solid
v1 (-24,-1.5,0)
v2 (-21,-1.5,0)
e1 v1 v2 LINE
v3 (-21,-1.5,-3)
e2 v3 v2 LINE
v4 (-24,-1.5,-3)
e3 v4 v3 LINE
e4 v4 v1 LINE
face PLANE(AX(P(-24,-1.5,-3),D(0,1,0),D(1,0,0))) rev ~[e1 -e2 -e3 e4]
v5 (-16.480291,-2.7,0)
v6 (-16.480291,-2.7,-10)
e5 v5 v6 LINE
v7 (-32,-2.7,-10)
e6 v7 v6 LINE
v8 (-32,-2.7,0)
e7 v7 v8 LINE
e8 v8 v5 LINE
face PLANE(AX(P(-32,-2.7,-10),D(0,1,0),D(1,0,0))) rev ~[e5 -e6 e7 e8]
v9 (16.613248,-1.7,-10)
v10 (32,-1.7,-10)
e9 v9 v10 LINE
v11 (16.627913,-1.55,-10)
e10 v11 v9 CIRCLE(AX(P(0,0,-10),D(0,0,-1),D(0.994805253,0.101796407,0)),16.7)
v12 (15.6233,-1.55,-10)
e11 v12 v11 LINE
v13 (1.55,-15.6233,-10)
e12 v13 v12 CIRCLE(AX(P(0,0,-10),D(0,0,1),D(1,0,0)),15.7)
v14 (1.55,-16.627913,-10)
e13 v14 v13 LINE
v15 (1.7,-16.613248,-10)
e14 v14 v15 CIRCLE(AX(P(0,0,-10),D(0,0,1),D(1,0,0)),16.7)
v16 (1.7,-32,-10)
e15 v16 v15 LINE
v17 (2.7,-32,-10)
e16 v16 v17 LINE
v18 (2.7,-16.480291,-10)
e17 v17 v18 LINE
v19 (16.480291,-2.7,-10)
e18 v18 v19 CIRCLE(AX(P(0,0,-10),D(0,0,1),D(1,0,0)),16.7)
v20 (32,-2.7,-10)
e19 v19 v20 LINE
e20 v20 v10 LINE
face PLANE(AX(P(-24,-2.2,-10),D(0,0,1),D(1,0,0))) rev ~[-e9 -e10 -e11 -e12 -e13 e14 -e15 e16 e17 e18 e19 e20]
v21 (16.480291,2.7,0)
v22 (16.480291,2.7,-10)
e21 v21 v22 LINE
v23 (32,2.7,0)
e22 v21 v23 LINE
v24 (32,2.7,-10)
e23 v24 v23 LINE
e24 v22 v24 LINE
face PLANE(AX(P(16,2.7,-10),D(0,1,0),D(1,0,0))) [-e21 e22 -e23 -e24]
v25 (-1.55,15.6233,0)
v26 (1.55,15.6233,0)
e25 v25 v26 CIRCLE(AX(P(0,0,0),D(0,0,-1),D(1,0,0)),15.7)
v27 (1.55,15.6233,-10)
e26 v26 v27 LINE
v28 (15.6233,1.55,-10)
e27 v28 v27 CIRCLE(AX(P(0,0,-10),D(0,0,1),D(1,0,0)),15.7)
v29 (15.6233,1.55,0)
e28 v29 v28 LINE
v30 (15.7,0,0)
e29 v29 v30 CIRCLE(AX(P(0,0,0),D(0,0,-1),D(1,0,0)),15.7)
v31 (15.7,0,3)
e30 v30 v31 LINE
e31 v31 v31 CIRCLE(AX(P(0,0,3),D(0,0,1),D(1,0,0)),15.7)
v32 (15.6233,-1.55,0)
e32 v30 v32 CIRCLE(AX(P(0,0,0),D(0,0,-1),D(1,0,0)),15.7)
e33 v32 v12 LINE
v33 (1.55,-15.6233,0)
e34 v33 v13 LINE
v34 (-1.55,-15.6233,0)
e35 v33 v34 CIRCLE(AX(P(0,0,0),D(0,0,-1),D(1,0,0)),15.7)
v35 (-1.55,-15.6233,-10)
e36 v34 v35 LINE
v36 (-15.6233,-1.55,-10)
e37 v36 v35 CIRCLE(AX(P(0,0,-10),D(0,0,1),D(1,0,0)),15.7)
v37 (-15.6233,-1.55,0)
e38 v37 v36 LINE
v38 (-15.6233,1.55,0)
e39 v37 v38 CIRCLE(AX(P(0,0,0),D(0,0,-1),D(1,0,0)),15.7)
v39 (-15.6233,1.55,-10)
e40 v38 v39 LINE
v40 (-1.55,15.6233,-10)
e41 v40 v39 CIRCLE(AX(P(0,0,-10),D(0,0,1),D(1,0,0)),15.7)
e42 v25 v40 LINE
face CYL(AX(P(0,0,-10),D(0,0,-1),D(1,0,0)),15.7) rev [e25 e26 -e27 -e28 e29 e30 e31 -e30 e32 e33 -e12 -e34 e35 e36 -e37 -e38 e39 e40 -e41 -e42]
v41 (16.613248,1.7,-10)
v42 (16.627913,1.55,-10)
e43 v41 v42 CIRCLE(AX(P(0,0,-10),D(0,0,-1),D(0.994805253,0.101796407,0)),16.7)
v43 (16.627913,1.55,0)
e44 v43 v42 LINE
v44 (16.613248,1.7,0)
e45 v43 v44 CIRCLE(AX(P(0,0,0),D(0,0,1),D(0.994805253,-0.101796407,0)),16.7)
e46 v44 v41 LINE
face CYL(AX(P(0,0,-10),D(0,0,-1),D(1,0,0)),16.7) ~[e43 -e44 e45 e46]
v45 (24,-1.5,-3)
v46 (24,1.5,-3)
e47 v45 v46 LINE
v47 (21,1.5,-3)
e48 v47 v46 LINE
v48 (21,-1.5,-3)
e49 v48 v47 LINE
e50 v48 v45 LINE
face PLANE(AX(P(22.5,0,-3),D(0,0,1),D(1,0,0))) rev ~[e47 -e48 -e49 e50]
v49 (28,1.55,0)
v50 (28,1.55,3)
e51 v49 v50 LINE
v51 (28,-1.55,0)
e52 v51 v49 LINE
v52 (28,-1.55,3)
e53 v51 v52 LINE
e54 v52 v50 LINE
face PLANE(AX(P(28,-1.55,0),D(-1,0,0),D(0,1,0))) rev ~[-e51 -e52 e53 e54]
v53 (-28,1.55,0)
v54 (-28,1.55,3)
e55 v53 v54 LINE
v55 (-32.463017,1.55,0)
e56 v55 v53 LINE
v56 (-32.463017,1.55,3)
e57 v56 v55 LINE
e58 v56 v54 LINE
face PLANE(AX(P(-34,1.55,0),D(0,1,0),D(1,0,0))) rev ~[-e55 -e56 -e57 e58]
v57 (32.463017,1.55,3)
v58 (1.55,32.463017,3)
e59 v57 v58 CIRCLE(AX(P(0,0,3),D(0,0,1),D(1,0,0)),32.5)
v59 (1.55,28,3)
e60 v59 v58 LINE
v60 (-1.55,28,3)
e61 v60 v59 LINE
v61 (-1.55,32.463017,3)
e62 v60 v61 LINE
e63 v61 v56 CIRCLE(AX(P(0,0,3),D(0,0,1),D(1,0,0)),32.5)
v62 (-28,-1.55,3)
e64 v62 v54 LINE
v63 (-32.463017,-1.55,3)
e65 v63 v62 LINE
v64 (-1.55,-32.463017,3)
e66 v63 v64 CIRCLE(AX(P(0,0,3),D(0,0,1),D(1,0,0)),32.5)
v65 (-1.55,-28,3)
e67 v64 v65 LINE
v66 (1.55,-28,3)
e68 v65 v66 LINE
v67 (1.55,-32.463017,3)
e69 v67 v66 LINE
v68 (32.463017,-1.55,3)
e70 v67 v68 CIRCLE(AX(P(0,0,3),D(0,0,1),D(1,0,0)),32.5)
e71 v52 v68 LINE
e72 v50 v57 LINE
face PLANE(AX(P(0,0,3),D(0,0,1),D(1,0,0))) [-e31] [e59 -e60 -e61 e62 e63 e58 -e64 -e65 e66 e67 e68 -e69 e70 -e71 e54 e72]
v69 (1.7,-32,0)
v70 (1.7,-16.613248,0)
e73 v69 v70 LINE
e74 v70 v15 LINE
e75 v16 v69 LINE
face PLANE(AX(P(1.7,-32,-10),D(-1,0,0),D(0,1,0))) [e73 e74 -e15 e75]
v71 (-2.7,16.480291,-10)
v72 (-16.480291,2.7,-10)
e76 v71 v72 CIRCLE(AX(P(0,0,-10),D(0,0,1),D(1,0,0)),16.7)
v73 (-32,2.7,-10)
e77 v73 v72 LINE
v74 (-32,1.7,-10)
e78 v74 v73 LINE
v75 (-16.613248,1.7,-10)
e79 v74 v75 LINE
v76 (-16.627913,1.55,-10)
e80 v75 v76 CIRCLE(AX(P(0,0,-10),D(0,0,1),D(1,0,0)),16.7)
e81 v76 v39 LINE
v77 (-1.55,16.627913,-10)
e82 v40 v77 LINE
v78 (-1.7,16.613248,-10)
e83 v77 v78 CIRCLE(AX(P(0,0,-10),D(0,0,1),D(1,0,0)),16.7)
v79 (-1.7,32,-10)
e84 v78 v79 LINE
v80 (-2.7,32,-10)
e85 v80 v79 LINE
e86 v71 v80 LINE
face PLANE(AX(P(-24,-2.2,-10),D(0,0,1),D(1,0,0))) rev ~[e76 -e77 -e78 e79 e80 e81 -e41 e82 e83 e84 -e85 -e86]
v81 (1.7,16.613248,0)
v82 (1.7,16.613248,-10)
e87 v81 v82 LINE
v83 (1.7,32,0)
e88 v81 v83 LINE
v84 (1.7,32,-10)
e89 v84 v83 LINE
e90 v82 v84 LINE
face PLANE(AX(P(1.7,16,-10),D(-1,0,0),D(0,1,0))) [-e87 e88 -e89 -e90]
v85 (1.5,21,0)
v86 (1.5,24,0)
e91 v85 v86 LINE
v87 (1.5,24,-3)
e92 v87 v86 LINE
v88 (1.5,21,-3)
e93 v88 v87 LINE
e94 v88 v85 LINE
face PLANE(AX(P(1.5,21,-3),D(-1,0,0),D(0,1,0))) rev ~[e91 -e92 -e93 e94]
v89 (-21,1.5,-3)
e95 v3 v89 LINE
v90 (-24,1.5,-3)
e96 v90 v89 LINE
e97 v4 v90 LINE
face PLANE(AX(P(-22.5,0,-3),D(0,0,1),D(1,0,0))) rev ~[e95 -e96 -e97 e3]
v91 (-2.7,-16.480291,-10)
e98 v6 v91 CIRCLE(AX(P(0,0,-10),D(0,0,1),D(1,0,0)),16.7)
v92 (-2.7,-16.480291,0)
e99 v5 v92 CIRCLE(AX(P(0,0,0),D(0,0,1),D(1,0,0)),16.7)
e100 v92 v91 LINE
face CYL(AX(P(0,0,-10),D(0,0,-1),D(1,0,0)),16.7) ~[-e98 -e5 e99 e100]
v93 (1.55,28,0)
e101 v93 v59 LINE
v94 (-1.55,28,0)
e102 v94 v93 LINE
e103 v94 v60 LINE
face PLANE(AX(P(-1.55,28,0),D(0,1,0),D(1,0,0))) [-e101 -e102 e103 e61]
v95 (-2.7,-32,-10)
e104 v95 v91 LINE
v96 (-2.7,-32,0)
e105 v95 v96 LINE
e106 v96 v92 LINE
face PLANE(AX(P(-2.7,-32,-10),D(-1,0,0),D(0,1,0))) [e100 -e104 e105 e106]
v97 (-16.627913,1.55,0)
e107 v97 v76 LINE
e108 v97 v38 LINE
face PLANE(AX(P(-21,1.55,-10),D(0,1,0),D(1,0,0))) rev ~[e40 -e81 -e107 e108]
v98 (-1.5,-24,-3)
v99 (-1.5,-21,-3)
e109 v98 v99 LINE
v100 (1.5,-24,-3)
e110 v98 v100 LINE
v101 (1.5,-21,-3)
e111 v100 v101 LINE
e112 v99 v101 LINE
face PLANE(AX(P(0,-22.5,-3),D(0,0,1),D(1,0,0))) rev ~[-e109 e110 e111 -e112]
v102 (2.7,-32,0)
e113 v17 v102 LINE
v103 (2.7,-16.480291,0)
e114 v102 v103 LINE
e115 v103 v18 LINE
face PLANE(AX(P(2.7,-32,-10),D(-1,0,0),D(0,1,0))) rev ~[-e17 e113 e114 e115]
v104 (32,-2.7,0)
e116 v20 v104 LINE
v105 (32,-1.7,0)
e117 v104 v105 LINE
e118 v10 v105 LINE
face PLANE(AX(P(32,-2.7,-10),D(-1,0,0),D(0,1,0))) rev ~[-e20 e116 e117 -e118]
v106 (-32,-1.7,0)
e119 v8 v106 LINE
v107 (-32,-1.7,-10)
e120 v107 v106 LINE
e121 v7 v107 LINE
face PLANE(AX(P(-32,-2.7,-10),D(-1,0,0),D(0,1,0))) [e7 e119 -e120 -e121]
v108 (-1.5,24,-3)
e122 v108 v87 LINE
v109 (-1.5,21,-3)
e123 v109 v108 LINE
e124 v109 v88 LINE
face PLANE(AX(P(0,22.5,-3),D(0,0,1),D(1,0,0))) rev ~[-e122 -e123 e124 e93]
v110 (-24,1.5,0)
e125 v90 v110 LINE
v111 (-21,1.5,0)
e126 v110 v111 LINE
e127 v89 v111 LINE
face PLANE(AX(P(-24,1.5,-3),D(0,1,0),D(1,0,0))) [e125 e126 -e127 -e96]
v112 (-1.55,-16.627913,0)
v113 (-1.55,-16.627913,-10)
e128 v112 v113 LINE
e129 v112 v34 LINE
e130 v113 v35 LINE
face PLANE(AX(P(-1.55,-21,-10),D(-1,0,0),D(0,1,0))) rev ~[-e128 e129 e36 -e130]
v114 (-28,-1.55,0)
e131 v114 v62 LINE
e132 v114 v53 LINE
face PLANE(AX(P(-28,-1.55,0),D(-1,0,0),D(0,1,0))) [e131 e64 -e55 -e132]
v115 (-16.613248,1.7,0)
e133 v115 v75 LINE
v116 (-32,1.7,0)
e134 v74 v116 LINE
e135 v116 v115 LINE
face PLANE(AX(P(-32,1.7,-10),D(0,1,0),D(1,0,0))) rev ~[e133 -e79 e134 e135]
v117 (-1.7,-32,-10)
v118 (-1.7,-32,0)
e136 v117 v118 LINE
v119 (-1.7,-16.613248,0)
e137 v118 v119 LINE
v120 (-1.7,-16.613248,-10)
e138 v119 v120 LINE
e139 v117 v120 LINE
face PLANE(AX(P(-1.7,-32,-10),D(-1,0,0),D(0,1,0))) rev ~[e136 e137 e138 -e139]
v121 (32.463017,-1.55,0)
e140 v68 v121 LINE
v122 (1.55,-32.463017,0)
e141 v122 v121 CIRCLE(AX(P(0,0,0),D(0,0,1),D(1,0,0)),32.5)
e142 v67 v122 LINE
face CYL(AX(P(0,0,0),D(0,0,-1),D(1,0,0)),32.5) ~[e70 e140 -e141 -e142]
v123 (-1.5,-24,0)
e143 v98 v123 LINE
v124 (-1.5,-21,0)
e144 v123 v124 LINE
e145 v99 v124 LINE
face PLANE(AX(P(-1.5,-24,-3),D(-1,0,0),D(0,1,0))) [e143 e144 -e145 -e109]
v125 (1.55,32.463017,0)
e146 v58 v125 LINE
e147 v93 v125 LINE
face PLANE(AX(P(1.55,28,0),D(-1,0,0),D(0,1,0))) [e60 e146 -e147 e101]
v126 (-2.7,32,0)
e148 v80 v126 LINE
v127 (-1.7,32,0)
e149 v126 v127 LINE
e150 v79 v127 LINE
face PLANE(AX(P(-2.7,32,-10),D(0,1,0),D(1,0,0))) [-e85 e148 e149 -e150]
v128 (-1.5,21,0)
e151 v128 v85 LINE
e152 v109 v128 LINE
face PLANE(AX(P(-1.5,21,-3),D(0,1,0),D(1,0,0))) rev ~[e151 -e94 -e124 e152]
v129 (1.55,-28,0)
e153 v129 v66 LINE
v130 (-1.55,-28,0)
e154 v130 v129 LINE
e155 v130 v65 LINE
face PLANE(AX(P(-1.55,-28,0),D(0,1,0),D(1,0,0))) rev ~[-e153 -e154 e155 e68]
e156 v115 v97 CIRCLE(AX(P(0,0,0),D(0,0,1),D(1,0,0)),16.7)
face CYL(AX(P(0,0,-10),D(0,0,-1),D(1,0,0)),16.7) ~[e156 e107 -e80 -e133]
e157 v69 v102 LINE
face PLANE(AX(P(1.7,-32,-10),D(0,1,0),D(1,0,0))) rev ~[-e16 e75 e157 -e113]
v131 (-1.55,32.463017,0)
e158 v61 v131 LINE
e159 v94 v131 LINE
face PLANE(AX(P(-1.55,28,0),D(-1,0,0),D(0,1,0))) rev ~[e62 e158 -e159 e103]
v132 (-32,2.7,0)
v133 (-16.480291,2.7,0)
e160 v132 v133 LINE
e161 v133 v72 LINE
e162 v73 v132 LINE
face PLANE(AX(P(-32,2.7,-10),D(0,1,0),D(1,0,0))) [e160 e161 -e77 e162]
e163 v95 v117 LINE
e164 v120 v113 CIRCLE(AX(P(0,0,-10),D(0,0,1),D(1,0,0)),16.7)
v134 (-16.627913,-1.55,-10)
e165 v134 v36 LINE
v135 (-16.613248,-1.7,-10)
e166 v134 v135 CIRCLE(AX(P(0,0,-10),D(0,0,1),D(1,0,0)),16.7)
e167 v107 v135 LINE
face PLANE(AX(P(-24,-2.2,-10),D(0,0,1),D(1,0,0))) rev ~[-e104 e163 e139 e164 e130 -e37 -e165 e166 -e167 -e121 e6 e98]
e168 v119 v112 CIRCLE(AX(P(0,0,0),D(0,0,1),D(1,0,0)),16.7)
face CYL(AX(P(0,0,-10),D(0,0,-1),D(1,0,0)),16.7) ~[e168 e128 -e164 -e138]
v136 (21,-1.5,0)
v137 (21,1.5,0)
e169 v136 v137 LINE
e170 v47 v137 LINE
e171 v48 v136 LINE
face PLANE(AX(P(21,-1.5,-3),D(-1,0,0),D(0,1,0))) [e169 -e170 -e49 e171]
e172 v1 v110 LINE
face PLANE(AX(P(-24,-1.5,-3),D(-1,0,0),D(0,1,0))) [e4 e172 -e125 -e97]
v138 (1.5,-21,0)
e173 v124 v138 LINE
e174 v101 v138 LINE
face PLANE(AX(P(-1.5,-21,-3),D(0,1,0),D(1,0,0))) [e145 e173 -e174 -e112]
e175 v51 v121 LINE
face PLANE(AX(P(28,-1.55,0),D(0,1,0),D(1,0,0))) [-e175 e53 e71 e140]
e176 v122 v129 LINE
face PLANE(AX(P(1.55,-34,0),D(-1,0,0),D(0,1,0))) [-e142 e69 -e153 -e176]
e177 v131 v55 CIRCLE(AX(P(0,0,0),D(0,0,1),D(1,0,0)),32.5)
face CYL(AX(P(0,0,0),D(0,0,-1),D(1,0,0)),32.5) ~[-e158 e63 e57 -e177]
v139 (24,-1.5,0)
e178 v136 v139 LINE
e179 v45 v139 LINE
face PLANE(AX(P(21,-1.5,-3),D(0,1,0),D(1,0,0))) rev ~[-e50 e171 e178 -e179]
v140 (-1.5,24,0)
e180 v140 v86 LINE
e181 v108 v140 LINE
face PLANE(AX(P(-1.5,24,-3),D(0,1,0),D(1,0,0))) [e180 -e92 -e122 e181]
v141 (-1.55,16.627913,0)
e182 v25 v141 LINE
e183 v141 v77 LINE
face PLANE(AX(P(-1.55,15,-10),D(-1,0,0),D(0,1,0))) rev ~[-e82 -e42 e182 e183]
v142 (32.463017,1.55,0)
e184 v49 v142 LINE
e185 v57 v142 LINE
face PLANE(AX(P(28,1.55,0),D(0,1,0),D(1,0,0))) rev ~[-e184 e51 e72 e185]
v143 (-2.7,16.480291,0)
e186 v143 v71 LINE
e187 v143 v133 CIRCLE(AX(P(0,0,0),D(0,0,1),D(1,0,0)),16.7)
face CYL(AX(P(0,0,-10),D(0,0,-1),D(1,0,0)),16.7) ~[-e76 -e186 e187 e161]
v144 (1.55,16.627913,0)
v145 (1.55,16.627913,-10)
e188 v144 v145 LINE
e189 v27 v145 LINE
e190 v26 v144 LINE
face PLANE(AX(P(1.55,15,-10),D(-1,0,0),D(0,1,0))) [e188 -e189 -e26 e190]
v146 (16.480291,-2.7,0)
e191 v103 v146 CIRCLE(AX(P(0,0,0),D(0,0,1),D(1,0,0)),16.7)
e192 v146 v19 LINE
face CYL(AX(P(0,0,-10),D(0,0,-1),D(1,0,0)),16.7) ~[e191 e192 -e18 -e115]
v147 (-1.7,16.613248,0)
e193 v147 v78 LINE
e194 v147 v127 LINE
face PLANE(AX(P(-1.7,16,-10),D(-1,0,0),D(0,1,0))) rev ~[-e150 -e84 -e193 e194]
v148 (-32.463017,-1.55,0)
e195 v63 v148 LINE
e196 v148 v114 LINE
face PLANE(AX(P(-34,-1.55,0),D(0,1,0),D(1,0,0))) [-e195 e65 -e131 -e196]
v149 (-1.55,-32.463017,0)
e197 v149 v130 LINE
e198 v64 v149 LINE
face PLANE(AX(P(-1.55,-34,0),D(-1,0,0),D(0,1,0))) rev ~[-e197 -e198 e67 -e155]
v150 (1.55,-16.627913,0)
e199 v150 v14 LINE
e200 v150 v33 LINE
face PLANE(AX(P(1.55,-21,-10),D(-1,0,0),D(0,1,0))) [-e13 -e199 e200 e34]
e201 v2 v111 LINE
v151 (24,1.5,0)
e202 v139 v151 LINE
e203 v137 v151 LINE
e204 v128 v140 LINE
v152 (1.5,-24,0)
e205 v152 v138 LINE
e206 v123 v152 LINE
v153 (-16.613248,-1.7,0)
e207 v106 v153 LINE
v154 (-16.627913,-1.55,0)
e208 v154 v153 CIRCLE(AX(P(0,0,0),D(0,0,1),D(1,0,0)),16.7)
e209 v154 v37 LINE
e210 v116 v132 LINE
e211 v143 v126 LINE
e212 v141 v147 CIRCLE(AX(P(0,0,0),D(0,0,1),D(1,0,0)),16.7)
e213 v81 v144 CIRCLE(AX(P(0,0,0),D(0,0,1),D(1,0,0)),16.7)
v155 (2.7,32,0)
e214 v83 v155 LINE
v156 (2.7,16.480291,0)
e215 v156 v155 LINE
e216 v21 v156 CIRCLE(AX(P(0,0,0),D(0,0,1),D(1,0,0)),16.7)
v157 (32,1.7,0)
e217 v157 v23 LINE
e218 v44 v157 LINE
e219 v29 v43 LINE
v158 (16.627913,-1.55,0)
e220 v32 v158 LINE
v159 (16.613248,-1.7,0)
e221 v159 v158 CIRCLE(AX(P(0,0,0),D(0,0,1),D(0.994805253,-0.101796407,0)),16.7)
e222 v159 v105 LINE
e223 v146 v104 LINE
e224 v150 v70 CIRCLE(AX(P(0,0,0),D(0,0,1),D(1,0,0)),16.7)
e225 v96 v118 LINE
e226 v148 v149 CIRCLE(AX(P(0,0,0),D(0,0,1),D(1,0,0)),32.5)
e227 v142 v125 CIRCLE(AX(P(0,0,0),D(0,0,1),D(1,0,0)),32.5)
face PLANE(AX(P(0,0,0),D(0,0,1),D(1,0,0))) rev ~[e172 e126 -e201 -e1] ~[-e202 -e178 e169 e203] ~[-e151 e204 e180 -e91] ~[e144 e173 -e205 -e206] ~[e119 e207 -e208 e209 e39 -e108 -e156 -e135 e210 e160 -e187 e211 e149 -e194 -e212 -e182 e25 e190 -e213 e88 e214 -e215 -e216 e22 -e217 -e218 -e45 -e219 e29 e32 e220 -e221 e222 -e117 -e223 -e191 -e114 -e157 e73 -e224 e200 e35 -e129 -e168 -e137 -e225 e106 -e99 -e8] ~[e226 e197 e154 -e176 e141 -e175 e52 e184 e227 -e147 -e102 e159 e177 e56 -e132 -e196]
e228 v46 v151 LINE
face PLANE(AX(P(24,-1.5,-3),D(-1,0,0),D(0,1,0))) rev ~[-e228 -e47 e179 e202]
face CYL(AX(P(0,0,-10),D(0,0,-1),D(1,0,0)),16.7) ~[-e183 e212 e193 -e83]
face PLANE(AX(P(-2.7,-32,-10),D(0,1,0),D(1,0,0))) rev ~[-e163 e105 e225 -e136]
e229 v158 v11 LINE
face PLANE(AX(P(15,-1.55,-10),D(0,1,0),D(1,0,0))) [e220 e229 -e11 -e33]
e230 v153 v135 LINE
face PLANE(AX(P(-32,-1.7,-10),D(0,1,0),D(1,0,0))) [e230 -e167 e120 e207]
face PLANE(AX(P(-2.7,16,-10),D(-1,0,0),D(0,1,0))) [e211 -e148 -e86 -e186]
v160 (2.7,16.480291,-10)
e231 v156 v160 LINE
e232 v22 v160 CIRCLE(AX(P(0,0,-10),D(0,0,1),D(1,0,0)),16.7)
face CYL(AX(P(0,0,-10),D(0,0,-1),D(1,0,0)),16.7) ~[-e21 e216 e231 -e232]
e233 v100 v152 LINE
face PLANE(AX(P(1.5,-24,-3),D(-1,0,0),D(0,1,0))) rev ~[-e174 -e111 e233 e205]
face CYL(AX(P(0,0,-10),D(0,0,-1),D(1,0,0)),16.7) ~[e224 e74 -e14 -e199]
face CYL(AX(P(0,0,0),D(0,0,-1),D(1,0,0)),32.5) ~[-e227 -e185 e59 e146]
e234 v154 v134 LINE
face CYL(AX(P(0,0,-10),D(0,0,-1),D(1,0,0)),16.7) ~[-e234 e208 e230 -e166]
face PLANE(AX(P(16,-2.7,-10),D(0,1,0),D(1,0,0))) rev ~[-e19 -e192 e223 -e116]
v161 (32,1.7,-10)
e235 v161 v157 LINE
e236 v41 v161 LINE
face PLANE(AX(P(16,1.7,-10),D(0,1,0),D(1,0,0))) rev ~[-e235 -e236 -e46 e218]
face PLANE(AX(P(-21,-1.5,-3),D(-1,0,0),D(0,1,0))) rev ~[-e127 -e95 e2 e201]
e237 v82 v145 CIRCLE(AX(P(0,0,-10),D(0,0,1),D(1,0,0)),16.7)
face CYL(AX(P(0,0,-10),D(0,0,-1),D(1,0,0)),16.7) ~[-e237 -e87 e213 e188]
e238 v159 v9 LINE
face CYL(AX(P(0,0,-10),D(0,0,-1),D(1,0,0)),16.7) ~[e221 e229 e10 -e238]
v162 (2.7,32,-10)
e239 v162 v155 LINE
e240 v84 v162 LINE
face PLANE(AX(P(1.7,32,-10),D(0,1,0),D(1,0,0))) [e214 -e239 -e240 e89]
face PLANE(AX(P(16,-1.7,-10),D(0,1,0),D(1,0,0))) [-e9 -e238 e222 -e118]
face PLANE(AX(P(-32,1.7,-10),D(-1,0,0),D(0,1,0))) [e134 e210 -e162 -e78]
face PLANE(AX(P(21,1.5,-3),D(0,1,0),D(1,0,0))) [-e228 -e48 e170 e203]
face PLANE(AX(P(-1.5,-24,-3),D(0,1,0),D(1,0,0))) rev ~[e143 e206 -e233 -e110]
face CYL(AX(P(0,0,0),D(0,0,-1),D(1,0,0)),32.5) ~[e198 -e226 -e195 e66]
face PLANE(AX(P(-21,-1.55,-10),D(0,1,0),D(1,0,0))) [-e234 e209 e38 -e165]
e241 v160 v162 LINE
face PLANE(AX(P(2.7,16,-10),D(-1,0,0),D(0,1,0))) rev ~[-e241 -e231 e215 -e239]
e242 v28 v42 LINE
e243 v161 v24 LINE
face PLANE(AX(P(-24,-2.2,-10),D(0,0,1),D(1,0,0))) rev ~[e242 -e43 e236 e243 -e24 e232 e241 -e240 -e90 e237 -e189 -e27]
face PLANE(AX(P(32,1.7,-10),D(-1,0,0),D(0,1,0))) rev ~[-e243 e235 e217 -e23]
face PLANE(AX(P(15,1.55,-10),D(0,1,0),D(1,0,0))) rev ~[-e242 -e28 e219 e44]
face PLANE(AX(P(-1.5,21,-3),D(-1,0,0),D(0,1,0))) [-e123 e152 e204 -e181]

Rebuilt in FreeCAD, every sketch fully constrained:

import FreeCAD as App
import Part
import Sketcher

doc = App.newDocument("Part")
body = doc.addObject("PartDesign::Body", "Body")

# Sketch on XY plane
sketch1 = body.newObject("Sketcher::SketchObject", "Sketch")
sketch1.AttachmentSupport = (doc.getObject("XY_Plane"), [""])
sketch1.MapMode = "FlatFace"
sketch1.AttachmentOffset = App.Placement(App.Vector(0, 0, -3), App.Rotation())
sketch1.addGeometry([
    Part.LineSegment(App.Vector(-1.5, 24, 0), App.Vector(-1.5, 21, 0)),
    Part.LineSegment(App.Vector(-1.5, 21, 0), App.Vector(1.5, 21, 0)),
    Part.LineSegment(App.Vector(1.5, 21, 0), App.Vector(1.5, 24, 0)),
    Part.LineSegment(App.Vector(1.5, 24, 0), App.Vector(-1.5, 24, 0)),
], False)
sketch1.addConstraint([
    Sketcher.Constraint("Coincident", 0, 2, 1, 1),
    Sketcher.Constraint("Coincident", 1, 2, 2, 1),
    Sketcher.Constraint("Coincident", 2, 2, 3, 1),
    Sketcher.Constraint("Coincident", 3, 2, 0, 1),
    Sketcher.Constraint("Vertical", 0),
    Sketcher.Constraint("Horizontal", 1),
    Sketcher.Constraint("Vertical", 2),
    Sketcher.Constraint("Horizontal", 3),
    Sketcher.Constraint("Equal", 3, 0),
    Sketcher.Constraint("DistanceX", 1, 1, 1, 2, 3.0),
    Sketcher.Constraint("DistanceY", -1, 1, 0, 2, 21.0),
    Sketcher.Constraint("DistanceX", 0, 2, -1, 1, 1.5),
])
pad1 = body.newObject("PartDesign::Pad", "Pad")
pad1.Profile = sketch1
pad1.Length = 3
body2 = doc.addObject("PartDesign::Body", "Body001")

# Sketch on XY plane
sketch2 = body2.newObject("Sketcher::SketchObject", "Sketch001")
sketch2.AttachmentSupport = (doc.getObject("XY_Plane001"), [""])
sketch2.MapMode = "FlatFace"
sketch2.AttachmentOffset = App.Placement(App.Vector(0, 0, -3), App.Rotation())
sketch2.addGeometry([
    Part.LineSegment(App.Vector(-1.5, -21, 0), App.Vector(-1.5, -24, 0)),
    Part.LineSegment(App.Vector(-1.5, -24, 0), App.Vector(1.5, -24, 0)),
    Part.LineSegment(App.Vector(1.5, -24, 0), App.Vector(1.5, -21, 0)),
    Part.LineSegment(App.Vector(1.5, -21, 0), App.Vector(-1.5, -21, 0)),
], False)
sketch2.addConstraint([
    Sketcher.Constraint("Coincident", 0, 2, 1, 1),
    Sketcher.Constraint("Coincident", 1, 2, 2, 1),
    Sketcher.Constraint("Coincident", 2, 2, 3, 1),
    Sketcher.Constraint("Coincident", 3, 2, 0, 1),
    Sketcher.Constraint("Vertical", 0),
    Sketcher.Constraint("Horizontal", 1),
    Sketcher.Constraint("Vertical", 2),
    Sketcher.Constraint("Horizontal", 3),
    Sketcher.Constraint("Equal", 3, 0),
    Sketcher.Constraint("DistanceX", 1, 1, 1, 2, 3.0),
    Sketcher.Constraint("DistanceY", 0, 2, -1, 1, 24.0),
    Sketcher.Constraint("DistanceX", 0, 2, -1, 1, 1.5),
])
pad2 = body2.newObject("PartDesign::Pad", "Pad001")
pad2.Profile = sketch2
pad2.Length = 3
body3 = doc.addObject("PartDesign::Body", "Body002")

# Sketch on XY plane
sketch3 = body3.newObject("Sketcher::SketchObject", "Sketch002")
sketch3.AttachmentSupport = (doc.getObject("XY_Plane002"), [""])
sketch3.MapMode = "FlatFace"
sketch3.AttachmentOffset = App.Placement(App.Vector(0, 0, -3), App.Rotation())
sketch3.addGeometry([
    Part.LineSegment(App.Vector(-24, 1.5, 0), App.Vector(-24, -1.5, 0)),
    Part.LineSegment(App.Vector(-24, -1.5, 0), App.Vector(-21, -1.5, 0)),
    Part.LineSegment(App.Vector(-21, -1.5, 0), App.Vector(-21, 1.5, 0)),
    Part.LineSegment(App.Vector(-21, 1.5, 0), App.Vector(-24, 1.5, 0)),
], False)
sketch3.addConstraint([
    Sketcher.Constraint("Coincident", 0, 2, 1, 1),
    Sketcher.Constraint("Coincident", 1, 2, 2, 1),
    Sketcher.Constraint("Coincident", 2, 2, 3, 1),
    Sketcher.Constraint("Coincident", 3, 2, 0, 1),
    Sketcher.Constraint("Vertical", 0),
    Sketcher.Constraint("Horizontal", 1),
    Sketcher.Constraint("Vertical", 2),
    Sketcher.Constraint("Horizontal", 3),
    Sketcher.Constraint("Equal", 3, 0),
    Sketcher.Constraint("DistanceX", 1, 1, 1, 2, 3.0),
    Sketcher.Constraint("DistanceX", 0, 2, -1, 1, 24.0),
    Sketcher.Constraint("DistanceY", 0, 2, -1, 1, 1.5),
])
pad3 = body3.newObject("PartDesign::Pad", "Pad002")
pad3.Profile = sketch3
pad3.Length = 3
body4 = doc.addObject("PartDesign::Body", "Body003")
body4.AllowCompound = True

# Sketch on XY plane
sketch4 = body4.newObject("Sketcher::SketchObject", "Sketch003")
sketch4.AttachmentSupport = (doc.getObject("XY_Plane003"), [""])
sketch4.MapMode = "FlatFace"
sketch4.AttachmentOffset = App.Placement(App.Vector(0, 0, -3), App.Rotation())
sketch4.addGeometry([
    Part.LineSegment(App.Vector(21, 1.5, 0), App.Vector(21, -1.5, 0)),
    Part.LineSegment(App.Vector(21, -1.5, 0), App.Vector(24, -1.5, 0)),
    Part.LineSegment(App.Vector(24, -1.5, 0), App.Vector(24, 1.5, 0)),
    Part.LineSegment(App.Vector(24, 1.5, 0), App.Vector(21, 1.5, 0)),
], False)
sketch4.addConstraint([
    Sketcher.Constraint("Coincident", 0, 2, 1, 1),
    Sketcher.Constraint("Coincident", 1, 2, 2, 1),
    Sketcher.Constraint("Coincident", 2, 2, 3, 1),
    Sketcher.Constraint("Coincident", 3, 2, 0, 1),
    Sketcher.Constraint("Vertical", 0),
    Sketcher.Constraint("Horizontal", 1),
    Sketcher.Constraint("Vertical", 2),
    Sketcher.Constraint("Horizontal", 3),
    Sketcher.Constraint("Equal", 3, 0),
    Sketcher.Constraint("DistanceX", 1, 1, 1, 2, 3.0),
    Sketcher.Constraint("DistanceX", -1, 1, 0, 2, 21.0),
    Sketcher.Constraint("DistanceY", 0, 2, -1, 1, 1.5),
])
pad4 = body4.newObject("PartDesign::Pad", "Pad003")
pad4.Profile = sketch4
pad4.Length = 3
doc.recompute()

boolean = body4.newObject("PartDesign::Boolean", "Boolean")
boolean.Type = "Fuse"
boolean.addObjects([body])
doc.recompute()

boolean2 = body4.newObject("PartDesign::Boolean", "Boolean001")
boolean2.Type = "Fuse"
boolean2.addObjects([body2])
doc.recompute()

boolean3 = body4.newObject("PartDesign::Boolean", "Boolean002")
boolean3.Type = "Fuse"
boolean3.addObjects([body3])
body5 = doc.addObject("PartDesign::Body", "Body004")

# Sketch on XY plane
sketch5 = body5.newObject("Sketcher::SketchObject", "Sketch004")
sketch5.AttachmentSupport = (doc.getObject("XY_Plane004"), [""])
sketch5.MapMode = "FlatFace"
sketch5.AttachmentOffset = App.Placement(App.Vector(0, 0, -10), App.Rotation())
sketch5.addGeometry([
    Part.LineSegment(App.Vector(-1.6, -15, 0), App.Vector(-1.6, -21, 0)),
    Part.LineSegment(App.Vector(-1.6, -21, 0), App.Vector(1.6, -21, 0)),
    Part.LineSegment(App.Vector(1.6, -21, 0), App.Vector(1.6, -15, 0)),
    Part.LineSegment(App.Vector(1.6, -15, 0), App.Vector(-1.6, -15, 0)),
], False)
sketch5.addConstraint([
    Sketcher.Constraint("Coincident", 0, 2, 1, 1),
    Sketcher.Constraint("Coincident", 1, 2, 2, 1),
    Sketcher.Constraint("Coincident", 2, 2, 3, 1),
    Sketcher.Constraint("Coincident", 3, 2, 0, 1),
    Sketcher.Constraint("Vertical", 0),
    Sketcher.Constraint("Horizontal", 1),
    Sketcher.Constraint("Vertical", 2),
    Sketcher.Constraint("Horizontal", 3),
    Sketcher.Constraint("DistanceY", 0, 2, 0, 1, 6.0),
    Sketcher.Constraint("DistanceX", 1, 1, 1, 2, 3.1),
    Sketcher.Constraint("DistanceY", 0, 2, -1, 1, 21.0),
    Sketcher.Constraint("DistanceX", 0, 2, -1, 1, 1.55),
])
pad5 = body5.newObject("PartDesign::Pad", "Pad004")
pad5.Profile = sketch5
pad5.Length = 10
body6 = doc.addObject("PartDesign::Body", "Body005")

# Sketch on XY plane
sketch6 = body6.newObject("Sketcher::SketchObject", "Sketch005")
sketch6.AttachmentSupport = (doc.getObject("XY_Plane005"), [""])
sketch6.MapMode = "FlatFace"
sketch6.AttachmentOffset = App.Placement(App.Vector(0, 0, -10), App.Rotation())
sketch6.addGeometry([
    Part.LineSegment(App.Vector(-1.6, 21, 0), App.Vector(-1.6, 15, 0)),
    Part.LineSegment(App.Vector(-1.6, 15, 0), App.Vector(1.6, 15, 0)),
    Part.LineSegment(App.Vector(1.6, 15, 0), App.Vector(1.6, 21, 0)),
    Part.LineSegment(App.Vector(1.6, 21, 0), App.Vector(-1.6, 21, 0)),
], False)
sketch6.addConstraint([
    Sketcher.Constraint("Coincident", 0, 2, 1, 1),
    Sketcher.Constraint("Coincident", 1, 2, 2, 1),
    Sketcher.Constraint("Coincident", 2, 2, 3, 1),
    Sketcher.Constraint("Coincident", 3, 2, 0, 1),
    Sketcher.Constraint("Vertical", 0),
    Sketcher.Constraint("Horizontal", 1),
    Sketcher.Constraint("Vertical", 2),
    Sketcher.Constraint("Horizontal", 3),
    Sketcher.Constraint("DistanceY", 0, 2, 0, 1, 6.0),
    Sketcher.Constraint("DistanceX", 1, 1, 1, 2, 3.1),
    Sketcher.Constraint("DistanceY", -1, 1, 0, 2, 15.0),
    Sketcher.Constraint("DistanceX", 0, 2, -1, 1, 1.55),
])
pad6 = body6.newObject("PartDesign::Pad", "Pad005")
pad6.Profile = sketch6
pad6.Length = 10
body7 = doc.addObject("PartDesign::Body", "Body006")

# Sketch on XY plane
sketch7 = body7.newObject("Sketcher::SketchObject", "Sketch006")
sketch7.AttachmentSupport = (doc.getObject("XY_Plane006"), [""])
sketch7.MapMode = "FlatFace"
sketch7.AttachmentOffset = App.Placement(App.Vector(0, 0, -10), App.Rotation())
sketch7.addGeometry([
    Part.LineSegment(App.Vector(15, 1.6, 0), App.Vector(15, -1.6, 0)),
    Part.LineSegment(App.Vector(15, -1.6, 0), App.Vector(21, -1.6, 0)),
    Part.LineSegment(App.Vector(21, -1.6, 0), App.Vector(21, 1.6, 0)),
    Part.LineSegment(App.Vector(21, 1.6, 0), App.Vector(15, 1.6, 0)),
], False)
sketch7.addConstraint([
    Sketcher.Constraint("Coincident", 0, 2, 1, 1),
    Sketcher.Constraint("Coincident", 1, 2, 2, 1),
    Sketcher.Constraint("Coincident", 2, 2, 3, 1),
    Sketcher.Constraint("Coincident", 3, 2, 0, 1),
    Sketcher.Constraint("Vertical", 0),
    Sketcher.Constraint("Horizontal", 1),
    Sketcher.Constraint("Vertical", 2),
    Sketcher.Constraint("Horizontal", 3),
    Sketcher.Constraint("DistanceX", 1, 1, 1, 2, 6.0),
    Sketcher.Constraint("DistanceY", 0, 2, 0, 1, 3.1),
    Sketcher.Constraint("DistanceX", -1, 1, 0, 2, 15.0),
    Sketcher.Constraint("DistanceY", 0, 2, -1, 1, 1.55),
])
pad7 = body7.newObject("PartDesign::Pad", "Pad006")
pad7.Profile = sketch7
pad7.Length = 10
body8 = doc.addObject("PartDesign::Body", "Body007")
body8.AllowCompound = True

# Sketch on XY plane
sketch8 = body8.newObject("Sketcher::SketchObject", "Sketch007")
sketch8.AttachmentSupport = (doc.getObject("XY_Plane007"), [""])
sketch8.MapMode = "FlatFace"
sketch8.AttachmentOffset = App.Placement(App.Vector(0, 0, -10), App.Rotation())
sketch8.addGeometry([
    Part.LineSegment(App.Vector(-21, 1.6, 0), App.Vector(-21, -1.6, 0)),
    Part.LineSegment(App.Vector(-21, -1.6, 0), App.Vector(-15, -1.6, 0)),
    Part.LineSegment(App.Vector(-15, -1.6, 0), App.Vector(-15, 1.6, 0)),
    Part.LineSegment(App.Vector(-15, 1.6, 0), App.Vector(-21, 1.6, 0)),
], False)
sketch8.addConstraint([
    Sketcher.Constraint("Coincident", 0, 2, 1, 1),
    Sketcher.Constraint("Coincident", 1, 2, 2, 1),
    Sketcher.Constraint("Coincident", 2, 2, 3, 1),
    Sketcher.Constraint("Coincident", 3, 2, 0, 1),
    Sketcher.Constraint("Vertical", 0),
    Sketcher.Constraint("Horizontal", 1),
    Sketcher.Constraint("Vertical", 2),
    Sketcher.Constraint("Horizontal", 3),
    Sketcher.Constraint("DistanceX", 1, 1, 1, 2, 6.0),
    Sketcher.Constraint("DistanceY", 0, 2, 0, 1, 3.1),
    Sketcher.Constraint("DistanceX", 0, 2, -1, 1, 21.0),
    Sketcher.Constraint("DistanceY", 0, 2, -1, 1, 1.55),
])
pad8 = body8.newObject("PartDesign::Pad", "Pad007")
pad8.Profile = sketch8
pad8.Length = 10
doc.recompute()

boolean4 = body8.newObject("PartDesign::Boolean", "Boolean003")
boolean4.Type = "Fuse"
boolean4.addObjects([body5])
doc.recompute()

boolean5 = body8.newObject("PartDesign::Boolean", "Boolean004")
boolean5.Type = "Fuse"
boolean5.addObjects([body6])
doc.recompute()

boolean6 = body8.newObject("PartDesign::Boolean", "Boolean005")
boolean6.Type = "Fuse"
boolean6.addObjects([body7])
body9 = doc.addObject("PartDesign::Body", "Body008")

# Sketch on XY plane
sketch9 = body9.newObject("Sketcher::SketchObject", "Sketch008")
sketch9.AttachmentSupport = (doc.getObject("XY_Plane008"), [""])
sketch9.MapMode = "FlatFace"
sketch9.addGeometry([
    Part.LineSegment(App.Vector(-1.6, 34, 0), App.Vector(-1.6, 28, 0)),
    Part.LineSegment(App.Vector(-1.6, 28, 0), App.Vector(1.6, 28, 0)),
    Part.LineSegment(App.Vector(1.6, 28, 0), App.Vector(1.6, 34, 0)),
    Part.LineSegment(App.Vector(1.6, 34, 0), App.Vector(-1.6, 34, 0)),
], False)
sketch9.addConstraint([
    Sketcher.Constraint("Coincident", 0, 2, 1, 1),
    Sketcher.Constraint("Coincident", 1, 2, 2, 1),
    Sketcher.Constraint("Coincident", 2, 2, 3, 1),
    Sketcher.Constraint("Coincident", 3, 2, 0, 1),
    Sketcher.Constraint("Vertical", 0),
    Sketcher.Constraint("Horizontal", 1),
    Sketcher.Constraint("Vertical", 2),
    Sketcher.Constraint("Horizontal", 3),
    Sketcher.Constraint("DistanceY", 0, 2, 0, 1, 6.0),
    Sketcher.Constraint("DistanceX", 1, 1, 1, 2, 3.1),
    Sketcher.Constraint("DistanceY", -1, 1, 0, 2, 28.0),
    Sketcher.Constraint("DistanceX", 0, 2, -1, 1, 1.55),
])
pad9 = body9.newObject("PartDesign::Pad", "Pad008")
pad9.Profile = sketch9
pad9.Length = 3
body10 = doc.addObject("PartDesign::Body", "Body009")

# Sketch on XY plane
sketch10 = body10.newObject("Sketcher::SketchObject", "Sketch009")
sketch10.AttachmentSupport = (doc.getObject("XY_Plane009"), [""])
sketch10.MapMode = "FlatFace"
sketch10.addGeometry([
    Part.LineSegment(App.Vector(28, 1.6, 0), App.Vector(28, -1.6, 0)),
    Part.LineSegment(App.Vector(28, -1.6, 0), App.Vector(34, -1.6, 0)),
    Part.LineSegment(App.Vector(34, -1.6, 0), App.Vector(34, 1.6, 0)),
    Part.LineSegment(App.Vector(34, 1.6, 0), App.Vector(28, 1.6, 0)),
], False)
sketch10.addConstraint([
    Sketcher.Constraint("Coincident", 0, 2, 1, 1),
    Sketcher.Constraint("Coincident", 1, 2, 2, 1),
    Sketcher.Constraint("Coincident", 2, 2, 3, 1),
    Sketcher.Constraint("Coincident", 3, 2, 0, 1),
    Sketcher.Constraint("Vertical", 0),
    Sketcher.Constraint("Horizontal", 1),
    Sketcher.Constraint("Vertical", 2),
    Sketcher.Constraint("Horizontal", 3),
    Sketcher.Constraint("DistanceX", 1, 1, 1, 2, 6.0),
    Sketcher.Constraint("DistanceY", 0, 2, 0, 1, 3.1),
    Sketcher.Constraint("DistanceX", -1, 1, 0, 2, 28.0),
    Sketcher.Constraint("DistanceY", 0, 2, -1, 1, 1.55),
])
pad10 = body10.newObject("PartDesign::Pad", "Pad009")
pad10.Profile = sketch10
pad10.Length = 3
body11 = doc.addObject("PartDesign::Body", "Body010")

# Sketch on XY plane
sketch11 = body11.newObject("Sketcher::SketchObject", "Sketch010")
sketch11.AttachmentSupport = (doc.getObject("XY_Plane010"), [""])
sketch11.MapMode = "FlatFace"
sketch11.addGeometry([
    Part.LineSegment(App.Vector(-34, 1.6, 0), App.Vector(-34, -1.6, 0)),
    Part.LineSegment(App.Vector(-34, -1.6, 0), App.Vector(-28, -1.6, 0)),
    Part.LineSegment(App.Vector(-28, -1.6, 0), App.Vector(-28, 1.6, 0)),
    Part.LineSegment(App.Vector(-28, 1.6, 0), App.Vector(-34, 1.6, 0)),
], False)
sketch11.addConstraint([
    Sketcher.Constraint("Coincident", 0, 2, 1, 1),
    Sketcher.Constraint("Coincident", 1, 2, 2, 1),
    Sketcher.Constraint("Coincident", 2, 2, 3, 1),
    Sketcher.Constraint("Coincident", 3, 2, 0, 1),
    Sketcher.Constraint("Vertical", 0),
    Sketcher.Constraint("Horizontal", 1),
    Sketcher.Constraint("Vertical", 2),
    Sketcher.Constraint("Horizontal", 3),
    Sketcher.Constraint("DistanceX", 1, 1, 1, 2, 6.0),
    Sketcher.Constraint("DistanceY", 0, 2, 0, 1, 3.1),
    Sketcher.Constraint("DistanceX", 0, 2, -1, 1, 34.0),
    Sketcher.Constraint("DistanceY", 0, 2, -1, 1, 1.55),
])
pad11 = body11.newObject("PartDesign::Pad", "Pad010")
pad11.Profile = sketch11
pad11.Length = 3
body12 = doc.addObject("PartDesign::Body", "Body011")
body12.AllowCompound = True

# Sketch on XY plane
sketch12 = body12.newObject("Sketcher::SketchObject", "Sketch011")
sketch12.AttachmentSupport = (doc.getObject("XY_Plane011"), [""])
sketch12.MapMode = "FlatFace"
sketch12.addGeometry([
    Part.LineSegment(App.Vector(-1.6, -28, 0), App.Vector(-1.6, -34, 0)),
    Part.LineSegment(App.Vector(-1.6, -34, 0), App.Vector(1.6, -34, 0)),
    Part.LineSegment(App.Vector(1.6, -34, 0), App.Vector(1.6, -28, 0)),
    Part.LineSegment(App.Vector(1.6, -28, 0), App.Vector(-1.6, -28, 0)),
], False)
sketch12.addConstraint([
    Sketcher.Constraint("Coincident", 0, 2, 1, 1),
    Sketcher.Constraint("Coincident", 1, 2, 2, 1),
    Sketcher.Constraint("Coincident", 2, 2, 3, 1),
    Sketcher.Constraint("Coincident", 3, 2, 0, 1),
    Sketcher.Constraint("Vertical", 0),
    Sketcher.Constraint("Horizontal", 1),
    Sketcher.Constraint("Vertical", 2),
    Sketcher.Constraint("Horizontal", 3),
    Sketcher.Constraint("DistanceY", 0, 2, 0, 1, 6.0),
    Sketcher.Constraint("DistanceX", 1, 1, 1, 2, 3.1),
    Sketcher.Constraint("DistanceY", 0, 2, -1, 1, 34.0),
    Sketcher.Constraint("DistanceX", 0, 2, -1, 1, 1.55),
])
pad12 = body12.newObject("PartDesign::Pad", "Pad011")
pad12.Profile = sketch12
pad12.Length = 3
doc.recompute()

boolean7 = body12.newObject("PartDesign::Boolean", "Boolean006")
boolean7.Type = "Fuse"
boolean7.addObjects([body9])
doc.recompute()

boolean8 = body12.newObject("PartDesign::Boolean", "Boolean007")
boolean8.Type = "Fuse"
boolean8.addObjects([body10])
doc.recompute()

boolean9 = body12.newObject("PartDesign::Boolean", "Boolean008")
boolean9.Type = "Fuse"
boolean9.addObjects([body11])
doc.recompute()

boolean10 = body12.newObject("PartDesign::Boolean", "Boolean009")
boolean10.Type = "Fuse"
boolean10.addObjects([body8])
body13 = doc.addObject("PartDesign::Body", "Body012")

# Sketch on XY plane
sketch13 = body13.newObject("Sketcher::SketchObject", "Sketch012")
sketch13.AttachmentSupport = (doc.getObject("XY_Plane012"), [""])
sketch13.MapMode = "FlatFace"
sketch13.AttachmentOffset = App.Placement(App.Vector(0, 0, -10), App.Rotation())
sketch13.addGeometry([
    Part.Circle(App.Vector(0, 0, 0), App.Vector(0, 0, 1), 17),
    Part.Circle(App.Vector(0, 0, 0), App.Vector(0, 0, 1), 16),
], False)
sketch13.addConstraint([
    Sketcher.Constraint("Coincident", 0, 3, -1, 1),
    Sketcher.Constraint("Coincident", 1, 3, -1, 1),
    Sketcher.Constraint("Diameter", 0, 33.4),
    Sketcher.Constraint("Diameter", 1, 31.4),
])
pad13 = body13.newObject("PartDesign::Pad", "Pad012")
pad13.Profile = sketch13
pad13.Length = 10
body14 = doc.addObject("PartDesign::Body", "Body013")

# Sketch on XY plane
sketch14 = body14.newObject("Sketcher::SketchObject", "Sketch013")
sketch14.AttachmentSupport = (doc.getObject("XY_Plane013"), [""])
sketch14.MapMode = "FlatFace"
sketch14.AttachmentOffset = App.Placement(App.Vector(0, 0, -10), App.Rotation())
sketch14.addGeometry([
    Part.LineSegment(App.Vector(-2.7, 32, 0), App.Vector(-2.7, 16, 0)),
    Part.LineSegment(App.Vector(-2.7, 16, 0), App.Vector(-1.7, 16, 0)),
    Part.LineSegment(App.Vector(-1.7, 16, 0), App.Vector(-1.7, 32, 0)),
    Part.LineSegment(App.Vector(-1.7, 32, 0), App.Vector(-2.7, 32, 0)),
], False)
sketch14.addConstraint([
    Sketcher.Constraint("Coincident", 0, 2, 1, 1),
    Sketcher.Constraint("Coincident", 1, 2, 2, 1),
    Sketcher.Constraint("Coincident", 2, 2, 3, 1),
    Sketcher.Constraint("Coincident", 3, 2, 0, 1),
    Sketcher.Constraint("Vertical", 0),
    Sketcher.Constraint("Horizontal", 1),
    Sketcher.Constraint("Vertical", 2),
    Sketcher.Constraint("Horizontal", 3),
    Sketcher.Constraint("DistanceX", 1, 1, 1, 2, 1.0),
    Sketcher.Constraint("DistanceY", 0, 2, 0, 1, 16.0),
    Sketcher.Constraint("DistanceY", -1, 1, 0, 2, 16.0),
    Sketcher.Constraint("DistanceX", 0, 2, -1, 1, 2.7),
])
pad14 = body14.newObject("PartDesign::Pad", "Pad013")
pad14.Profile = sketch14
pad14.Length = 10
body15 = doc.addObject("PartDesign::Body", "Body014")

# Sketch on XY plane
sketch15 = body15.newObject("Sketcher::SketchObject", "Sketch014")
sketch15.AttachmentSupport = (doc.getObject("XY_Plane014"), [""])
sketch15.MapMode = "FlatFace"
sketch15.AttachmentOffset = App.Placement(App.Vector(0, 0, -10), App.Rotation())
sketch15.addGeometry([
    Part.LineSegment(App.Vector(-2.7, -16, 0), App.Vector(-2.7, -32, 0)),
    Part.LineSegment(App.Vector(-2.7, -32, 0), App.Vector(-1.7, -32, 0)),
    Part.LineSegment(App.Vector(-1.7, -32, 0), App.Vector(-1.7, -16, 0)),
    Part.LineSegment(App.Vector(-1.7, -16, 0), App.Vector(-2.7, -16, 0)),
], False)
sketch15.addConstraint([
    Sketcher.Constraint("Coincident", 0, 2, 1, 1),
    Sketcher.Constraint("Coincident", 1, 2, 2, 1),
    Sketcher.Constraint("Coincident", 2, 2, 3, 1),
    Sketcher.Constraint("Coincident", 3, 2, 0, 1),
    Sketcher.Constraint("Vertical", 0),
    Sketcher.Constraint("Horizontal", 1),
    Sketcher.Constraint("Vertical", 2),
    Sketcher.Constraint("Horizontal", 3),
    Sketcher.Constraint("DistanceX", 1, 1, 1, 2, 1.0),
    Sketcher.Constraint("DistanceY", 0, 2, 0, 1, 16.0),
    Sketcher.Constraint("DistanceY", 0, 2, -1, 1, 32.0),
    Sketcher.Constraint("DistanceX", 0, 2, -1, 1, 2.7),
])
pad15 = body15.newObject("PartDesign::Pad", "Pad014")
pad15.Profile = sketch15
pad15.Length = 10
body16 = doc.addObject("PartDesign::Body", "Body015")

# Sketch on XY plane
sketch16 = body16.newObject("Sketcher::SketchObject", "Sketch015")
sketch16.AttachmentSupport = (doc.getObject("XY_Plane015"), [""])
sketch16.MapMode = "FlatFace"
sketch16.AttachmentOffset = App.Placement(App.Vector(0, 0, -10), App.Rotation())
sketch16.addGeometry([
    Part.LineSegment(App.Vector(1.7, -16, 0), App.Vector(1.7, -32, 0)),
    Part.LineSegment(App.Vector(1.7, -32, 0), App.Vector(2.7, -32, 0)),
    Part.LineSegment(App.Vector(2.7, -32, 0), App.Vector(2.7, -16, 0)),
    Part.LineSegment(App.Vector(2.7, -16, 0), App.Vector(1.7, -16, 0)),
], False)
sketch16.addConstraint([
    Sketcher.Constraint("Coincident", 0, 2, 1, 1),
    Sketcher.Constraint("Coincident", 1, 2, 2, 1),
    Sketcher.Constraint("Coincident", 2, 2, 3, 1),
    Sketcher.Constraint("Coincident", 3, 2, 0, 1),
    Sketcher.Constraint("Vertical", 0),
    Sketcher.Constraint("Horizontal", 1),
    Sketcher.Constraint("Vertical", 2),
    Sketcher.Constraint("Horizontal", 3),
    Sketcher.Constraint("DistanceX", 1, 1, 1, 2, 1.0),
    Sketcher.Constraint("DistanceY", 0, 2, 0, 1, 16.0),
    Sketcher.Constraint("DistanceY", 0, 2, -1, 1, 32.0),
    Sketcher.Constraint("DistanceX", -1, 1, 0, 2, 1.7),
])
pad16 = body16.newObject("PartDesign::Pad", "Pad015")
pad16.Profile = sketch16
pad16.Length = 10
body17 = doc.addObject("PartDesign::Body", "Body016")

# Sketch on XY plane
sketch17 = body17.newObject("Sketcher::SketchObject", "Sketch016")
sketch17.AttachmentSupport = (doc.getObject("XY_Plane016"), [""])
sketch17.MapMode = "FlatFace"
sketch17.AttachmentOffset = App.Placement(App.Vector(0, 0, -10), App.Rotation())
sketch17.addGeometry([
    Part.LineSegment(App.Vector(16, 2.7, 0), App.Vector(16, 1.7, 0)),
    Part.LineSegment(App.Vector(16, 1.7, 0), App.Vector(32, 1.7, 0)),
    Part.LineSegment(App.Vector(32, 1.7, 0), App.Vector(32, 2.7, 0)),
    Part.LineSegment(App.Vector(32, 2.7, 0), App.Vector(16, 2.7, 0)),
], False)
sketch17.addConstraint([
    Sketcher.Constraint("Coincident", 0, 2, 1, 1),
    Sketcher.Constraint("Coincident", 1, 2, 2, 1),
    Sketcher.Constraint("Coincident", 2, 2, 3, 1),
    Sketcher.Constraint("Coincident", 3, 2, 0, 1),
    Sketcher.Constraint("Vertical", 0),
    Sketcher.Constraint("Horizontal", 1),
    Sketcher.Constraint("Vertical", 2),
    Sketcher.Constraint("Horizontal", 3),
    Sketcher.Constraint("DistanceX", 1, 1, 1, 2, 16.0),
    Sketcher.Constraint("DistanceY", 0, 2, 0, 1, 1.0),
    Sketcher.Constraint("DistanceX", -1, 1, 0, 2, 16.0),
    Sketcher.Constraint("DistanceY", -1, 1, 0, 2, 1.7),
])
pad17 = body17.newObject("PartDesign::Pad", "Pad016")
pad17.Profile = sketch17
pad17.Length = 10
body18 = doc.addObject("PartDesign::Body", "Body017")

# Sketch on XY plane
sketch18 = body18.newObject("Sketcher::SketchObject", "Sketch017")
sketch18.AttachmentSupport = (doc.getObject("XY_Plane017"), [""])
sketch18.MapMode = "FlatFace"
sketch18.AttachmentOffset = App.Placement(App.Vector(0, 0, -10), App.Rotation())
sketch18.addGeometry([
    Part.LineSegment(App.Vector(16, -1.7, 0), App.Vector(16, -2.7, 0)),
    Part.LineSegment(App.Vector(16, -2.7, 0), App.Vector(32, -2.7, 0)),
    Part.LineSegment(App.Vector(32, -2.7, 0), App.Vector(32, -1.7, 0)),
    Part.LineSegment(App.Vector(32, -1.7, 0), App.Vector(16, -1.7, 0)),
], False)
sketch18.addConstraint([
    Sketcher.Constraint("Coincident", 0, 2, 1, 1),
    Sketcher.Constraint("Coincident", 1, 2, 2, 1),
    Sketcher.Constraint("Coincident", 2, 2, 3, 1),
    Sketcher.Constraint("Coincident", 3, 2, 0, 1),
    Sketcher.Constraint("Vertical", 0),
    Sketcher.Constraint("Horizontal", 1),
    Sketcher.Constraint("Vertical", 2),
    Sketcher.Constraint("Horizontal", 3),
    Sketcher.Constraint("DistanceX", 1, 1, 1, 2, 16.0),
    Sketcher.Constraint("DistanceY", 0, 2, 0, 1, 1.0),
    Sketcher.Constraint("DistanceX", -1, 1, 0, 2, 16.0),
    Sketcher.Constraint("DistanceY", 0, 2, -1, 1, 2.7),
])
pad18 = body18.newObject("PartDesign::Pad", "Pad017")
pad18.Profile = sketch18
pad18.Length = 10
body19 = doc.addObject("PartDesign::Body", "Body018")

# Sketch on XY plane
sketch19 = body19.newObject("Sketcher::SketchObject", "Sketch018")
sketch19.AttachmentSupport = (doc.getObject("XY_Plane018"), [""])
sketch19.MapMode = "FlatFace"
sketch19.AttachmentOffset = App.Placement(App.Vector(0, 0, -10), App.Rotation())
sketch19.addGeometry([
    Part.LineSegment(App.Vector(-32, 2.7, 0), App.Vector(-32, 1.7, 0)),
    Part.LineSegment(App.Vector(-32, 1.7, 0), App.Vector(-16, 1.7, 0)),
    Part.LineSegment(App.Vector(-16, 1.7, 0), App.Vector(-16, 2.7, 0)),
    Part.LineSegment(App.Vector(-16, 2.7, 0), App.Vector(-32, 2.7, 0)),
], False)
sketch19.addConstraint([
    Sketcher.Constraint("Coincident", 0, 2, 1, 1),
    Sketcher.Constraint("Coincident", 1, 2, 2, 1),
    Sketcher.Constraint("Coincident", 2, 2, 3, 1),
    Sketcher.Constraint("Coincident", 3, 2, 0, 1),
    Sketcher.Constraint("Vertical", 0),
    Sketcher.Constraint("Horizontal", 1),
    Sketcher.Constraint("Vertical", 2),
    Sketcher.Constraint("Horizontal", 3),
    Sketcher.Constraint("DistanceX", 1, 1, 1, 2, 16.0),
    Sketcher.Constraint("DistanceY", 0, 2, 0, 1, 1.0),
    Sketcher.Constraint("DistanceX", 0, 2, -1, 1, 32.0),
    Sketcher.Constraint("DistanceY", -1, 1, 0, 2, 1.7),
])
pad19 = body19.newObject("PartDesign::Pad", "Pad018")
pad19.Profile = sketch19
pad19.Length = 10
body20 = doc.addObject("PartDesign::Body", "Body019")

# Sketch on XY plane
sketch20 = body20.newObject("Sketcher::SketchObject", "Sketch019")
sketch20.AttachmentSupport = (doc.getObject("XY_Plane019"), [""])
sketch20.MapMode = "FlatFace"
sketch20.AttachmentOffset = App.Placement(App.Vector(0, 0, -10), App.Rotation())
sketch20.addGeometry([
    Part.LineSegment(App.Vector(-32, -1.7, 0), App.Vector(-32, -2.7, 0)),
    Part.LineSegment(App.Vector(-32, -2.7, 0), App.Vector(-16, -2.7, 0)),
    Part.LineSegment(App.Vector(-16, -2.7, 0), App.Vector(-16, -1.7, 0)),
    Part.LineSegment(App.Vector(-16, -1.7, 0), App.Vector(-32, -1.7, 0)),
], False)
sketch20.addConstraint([
    Sketcher.Constraint("Coincident", 0, 2, 1, 1),
    Sketcher.Constraint("Coincident", 1, 2, 2, 1),
    Sketcher.Constraint("Coincident", 2, 2, 3, 1),
    Sketcher.Constraint("Coincident", 3, 2, 0, 1),
    Sketcher.Constraint("Vertical", 0),
    Sketcher.Constraint("Horizontal", 1),
    Sketcher.Constraint("Vertical", 2),
    Sketcher.Constraint("Horizontal", 3),
    Sketcher.Constraint("DistanceX", 1, 1, 1, 2, 16.0),
    Sketcher.Constraint("DistanceY", 0, 2, 0, 1, 1.0),
    Sketcher.Constraint("DistanceX", 0, 2, -1, 1, 32.0),
    Sketcher.Constraint("DistanceY", 0, 2, -1, 1, 2.7),
])
pad20 = body20.newObject("PartDesign::Pad", "Pad019")
pad20.Profile = sketch20
pad20.Length = 10
body21 = doc.addObject("PartDesign::Body", "Body020")
body21.AllowCompound = True

# Sketch on XY plane
sketch21 = body21.newObject("Sketcher::SketchObject", "Sketch020")
sketch21.AttachmentSupport = (doc.getObject("XY_Plane020"), [""])
sketch21.MapMode = "FlatFace"
sketch21.AttachmentOffset = App.Placement(App.Vector(0, 0, -10), App.Rotation())
sketch21.addGeometry([
    Part.LineSegment(App.Vector(1.7, 32, 0), App.Vector(1.7, 16, 0)),
    Part.LineSegment(App.Vector(1.7, 16, 0), App.Vector(2.7, 16, 0)),
    Part.LineSegment(App.Vector(2.7, 16, 0), App.Vector(2.7, 32, 0)),
    Part.LineSegment(App.Vector(2.7, 32, 0), App.Vector(1.7, 32, 0)),
], False)
sketch21.addConstraint([
    Sketcher.Constraint("Coincident", 0, 2, 1, 1),
    Sketcher.Constraint("Coincident", 1, 2, 2, 1),
    Sketcher.Constraint("Coincident", 2, 2, 3, 1),
    Sketcher.Constraint("Coincident", 3, 2, 0, 1),
    Sketcher.Constraint("Vertical", 0),
    Sketcher.Constraint("Horizontal", 1),
    Sketcher.Constraint("Vertical", 2),
    Sketcher.Constraint("Horizontal", 3),
    Sketcher.Constraint("DistanceX", 1, 1, 1, 2, 1.0),
    Sketcher.Constraint("DistanceY", 0, 2, 0, 1, 16.0),
    Sketcher.Constraint("DistanceY", -1, 1, 0, 2, 16.0),
    Sketcher.Constraint("DistanceX", -1, 1, 0, 2, 1.7),
])
pad21 = body21.newObject("PartDesign::Pad", "Pad020")
pad21.Profile = sketch21
pad21.Length = 10
doc.recompute()

boolean11 = body21.newObject("PartDesign::Boolean", "Boolean010")
boolean11.Type = "Fuse"
boolean11.addObjects([body14])
doc.recompute()

boolean12 = body21.newObject("PartDesign::Boolean", "Boolean011")
boolean12.Type = "Fuse"
boolean12.addObjects([body15])
doc.recompute()

boolean13 = body21.newObject("PartDesign::Boolean", "Boolean012")
boolean13.Type = "Fuse"
boolean13.addObjects([body16])
doc.recompute()

boolean14 = body21.newObject("PartDesign::Boolean", "Boolean013")
boolean14.Type = "Fuse"
boolean14.addObjects([body17])
doc.recompute()

boolean15 = body21.newObject("PartDesign::Boolean", "Boolean014")
boolean15.Type = "Fuse"
boolean15.addObjects([body18])
doc.recompute()

boolean16 = body21.newObject("PartDesign::Boolean", "Boolean015")
boolean16.Type = "Fuse"
boolean16.addObjects([body19])
doc.recompute()

boolean17 = body21.newObject("PartDesign::Boolean", "Boolean016")
boolean17.Type = "Fuse"
boolean17.addObjects([body20])
body22 = doc.addObject("PartDesign::Body", "Body021")

# Sketch on XY plane
sketch22 = body22.newObject("Sketcher::SketchObject", "Sketch021")
sketch22.AttachmentSupport = (doc.getObject("XY_Plane021"), [""])
sketch22.MapMode = "FlatFace"
sketch22.addGeometry([
    Part.Circle(App.Vector(0, 0, 0), App.Vector(0, 0, 1), 32),
    Part.Circle(App.Vector(0, 0, 0), App.Vector(0, 0, 1), 16),
], False)
sketch22.addConstraint([
    Sketcher.Constraint("Coincident", 0, 3, -1, 1),
    Sketcher.Constraint("Coincident", 1, 3, -1, 1),
    Sketcher.Constraint("Diameter", 0, 65.0),
    Sketcher.Constraint("Diameter", 1, 31.4),
])
pad22 = body22.newObject("PartDesign::Pad", "Pad021")
pad22.Profile = sketch22
pad22.Length = 3
doc.recompute()

boolean18 = body22.newObject("PartDesign::Boolean", "Boolean017")
boolean18.Type = "Fuse"
boolean18.addObjects([body13])
doc.recompute()

boolean19 = body22.newObject("PartDesign::Boolean", "Boolean018")
boolean19.Type = "Fuse"
boolean19.addObjects([body21])
doc.recompute()

boolean20 = body22.newObject("PartDesign::Boolean", "Boolean019")
boolean20.Type = "Cut"
boolean20.addObjects([body12])
doc.recompute()

boolean21 = body22.newObject("PartDesign::Boolean", "Boolean020")
boolean21.Type = "Fuse"
boolean21.addObjects([body4])

doc.recompute()
